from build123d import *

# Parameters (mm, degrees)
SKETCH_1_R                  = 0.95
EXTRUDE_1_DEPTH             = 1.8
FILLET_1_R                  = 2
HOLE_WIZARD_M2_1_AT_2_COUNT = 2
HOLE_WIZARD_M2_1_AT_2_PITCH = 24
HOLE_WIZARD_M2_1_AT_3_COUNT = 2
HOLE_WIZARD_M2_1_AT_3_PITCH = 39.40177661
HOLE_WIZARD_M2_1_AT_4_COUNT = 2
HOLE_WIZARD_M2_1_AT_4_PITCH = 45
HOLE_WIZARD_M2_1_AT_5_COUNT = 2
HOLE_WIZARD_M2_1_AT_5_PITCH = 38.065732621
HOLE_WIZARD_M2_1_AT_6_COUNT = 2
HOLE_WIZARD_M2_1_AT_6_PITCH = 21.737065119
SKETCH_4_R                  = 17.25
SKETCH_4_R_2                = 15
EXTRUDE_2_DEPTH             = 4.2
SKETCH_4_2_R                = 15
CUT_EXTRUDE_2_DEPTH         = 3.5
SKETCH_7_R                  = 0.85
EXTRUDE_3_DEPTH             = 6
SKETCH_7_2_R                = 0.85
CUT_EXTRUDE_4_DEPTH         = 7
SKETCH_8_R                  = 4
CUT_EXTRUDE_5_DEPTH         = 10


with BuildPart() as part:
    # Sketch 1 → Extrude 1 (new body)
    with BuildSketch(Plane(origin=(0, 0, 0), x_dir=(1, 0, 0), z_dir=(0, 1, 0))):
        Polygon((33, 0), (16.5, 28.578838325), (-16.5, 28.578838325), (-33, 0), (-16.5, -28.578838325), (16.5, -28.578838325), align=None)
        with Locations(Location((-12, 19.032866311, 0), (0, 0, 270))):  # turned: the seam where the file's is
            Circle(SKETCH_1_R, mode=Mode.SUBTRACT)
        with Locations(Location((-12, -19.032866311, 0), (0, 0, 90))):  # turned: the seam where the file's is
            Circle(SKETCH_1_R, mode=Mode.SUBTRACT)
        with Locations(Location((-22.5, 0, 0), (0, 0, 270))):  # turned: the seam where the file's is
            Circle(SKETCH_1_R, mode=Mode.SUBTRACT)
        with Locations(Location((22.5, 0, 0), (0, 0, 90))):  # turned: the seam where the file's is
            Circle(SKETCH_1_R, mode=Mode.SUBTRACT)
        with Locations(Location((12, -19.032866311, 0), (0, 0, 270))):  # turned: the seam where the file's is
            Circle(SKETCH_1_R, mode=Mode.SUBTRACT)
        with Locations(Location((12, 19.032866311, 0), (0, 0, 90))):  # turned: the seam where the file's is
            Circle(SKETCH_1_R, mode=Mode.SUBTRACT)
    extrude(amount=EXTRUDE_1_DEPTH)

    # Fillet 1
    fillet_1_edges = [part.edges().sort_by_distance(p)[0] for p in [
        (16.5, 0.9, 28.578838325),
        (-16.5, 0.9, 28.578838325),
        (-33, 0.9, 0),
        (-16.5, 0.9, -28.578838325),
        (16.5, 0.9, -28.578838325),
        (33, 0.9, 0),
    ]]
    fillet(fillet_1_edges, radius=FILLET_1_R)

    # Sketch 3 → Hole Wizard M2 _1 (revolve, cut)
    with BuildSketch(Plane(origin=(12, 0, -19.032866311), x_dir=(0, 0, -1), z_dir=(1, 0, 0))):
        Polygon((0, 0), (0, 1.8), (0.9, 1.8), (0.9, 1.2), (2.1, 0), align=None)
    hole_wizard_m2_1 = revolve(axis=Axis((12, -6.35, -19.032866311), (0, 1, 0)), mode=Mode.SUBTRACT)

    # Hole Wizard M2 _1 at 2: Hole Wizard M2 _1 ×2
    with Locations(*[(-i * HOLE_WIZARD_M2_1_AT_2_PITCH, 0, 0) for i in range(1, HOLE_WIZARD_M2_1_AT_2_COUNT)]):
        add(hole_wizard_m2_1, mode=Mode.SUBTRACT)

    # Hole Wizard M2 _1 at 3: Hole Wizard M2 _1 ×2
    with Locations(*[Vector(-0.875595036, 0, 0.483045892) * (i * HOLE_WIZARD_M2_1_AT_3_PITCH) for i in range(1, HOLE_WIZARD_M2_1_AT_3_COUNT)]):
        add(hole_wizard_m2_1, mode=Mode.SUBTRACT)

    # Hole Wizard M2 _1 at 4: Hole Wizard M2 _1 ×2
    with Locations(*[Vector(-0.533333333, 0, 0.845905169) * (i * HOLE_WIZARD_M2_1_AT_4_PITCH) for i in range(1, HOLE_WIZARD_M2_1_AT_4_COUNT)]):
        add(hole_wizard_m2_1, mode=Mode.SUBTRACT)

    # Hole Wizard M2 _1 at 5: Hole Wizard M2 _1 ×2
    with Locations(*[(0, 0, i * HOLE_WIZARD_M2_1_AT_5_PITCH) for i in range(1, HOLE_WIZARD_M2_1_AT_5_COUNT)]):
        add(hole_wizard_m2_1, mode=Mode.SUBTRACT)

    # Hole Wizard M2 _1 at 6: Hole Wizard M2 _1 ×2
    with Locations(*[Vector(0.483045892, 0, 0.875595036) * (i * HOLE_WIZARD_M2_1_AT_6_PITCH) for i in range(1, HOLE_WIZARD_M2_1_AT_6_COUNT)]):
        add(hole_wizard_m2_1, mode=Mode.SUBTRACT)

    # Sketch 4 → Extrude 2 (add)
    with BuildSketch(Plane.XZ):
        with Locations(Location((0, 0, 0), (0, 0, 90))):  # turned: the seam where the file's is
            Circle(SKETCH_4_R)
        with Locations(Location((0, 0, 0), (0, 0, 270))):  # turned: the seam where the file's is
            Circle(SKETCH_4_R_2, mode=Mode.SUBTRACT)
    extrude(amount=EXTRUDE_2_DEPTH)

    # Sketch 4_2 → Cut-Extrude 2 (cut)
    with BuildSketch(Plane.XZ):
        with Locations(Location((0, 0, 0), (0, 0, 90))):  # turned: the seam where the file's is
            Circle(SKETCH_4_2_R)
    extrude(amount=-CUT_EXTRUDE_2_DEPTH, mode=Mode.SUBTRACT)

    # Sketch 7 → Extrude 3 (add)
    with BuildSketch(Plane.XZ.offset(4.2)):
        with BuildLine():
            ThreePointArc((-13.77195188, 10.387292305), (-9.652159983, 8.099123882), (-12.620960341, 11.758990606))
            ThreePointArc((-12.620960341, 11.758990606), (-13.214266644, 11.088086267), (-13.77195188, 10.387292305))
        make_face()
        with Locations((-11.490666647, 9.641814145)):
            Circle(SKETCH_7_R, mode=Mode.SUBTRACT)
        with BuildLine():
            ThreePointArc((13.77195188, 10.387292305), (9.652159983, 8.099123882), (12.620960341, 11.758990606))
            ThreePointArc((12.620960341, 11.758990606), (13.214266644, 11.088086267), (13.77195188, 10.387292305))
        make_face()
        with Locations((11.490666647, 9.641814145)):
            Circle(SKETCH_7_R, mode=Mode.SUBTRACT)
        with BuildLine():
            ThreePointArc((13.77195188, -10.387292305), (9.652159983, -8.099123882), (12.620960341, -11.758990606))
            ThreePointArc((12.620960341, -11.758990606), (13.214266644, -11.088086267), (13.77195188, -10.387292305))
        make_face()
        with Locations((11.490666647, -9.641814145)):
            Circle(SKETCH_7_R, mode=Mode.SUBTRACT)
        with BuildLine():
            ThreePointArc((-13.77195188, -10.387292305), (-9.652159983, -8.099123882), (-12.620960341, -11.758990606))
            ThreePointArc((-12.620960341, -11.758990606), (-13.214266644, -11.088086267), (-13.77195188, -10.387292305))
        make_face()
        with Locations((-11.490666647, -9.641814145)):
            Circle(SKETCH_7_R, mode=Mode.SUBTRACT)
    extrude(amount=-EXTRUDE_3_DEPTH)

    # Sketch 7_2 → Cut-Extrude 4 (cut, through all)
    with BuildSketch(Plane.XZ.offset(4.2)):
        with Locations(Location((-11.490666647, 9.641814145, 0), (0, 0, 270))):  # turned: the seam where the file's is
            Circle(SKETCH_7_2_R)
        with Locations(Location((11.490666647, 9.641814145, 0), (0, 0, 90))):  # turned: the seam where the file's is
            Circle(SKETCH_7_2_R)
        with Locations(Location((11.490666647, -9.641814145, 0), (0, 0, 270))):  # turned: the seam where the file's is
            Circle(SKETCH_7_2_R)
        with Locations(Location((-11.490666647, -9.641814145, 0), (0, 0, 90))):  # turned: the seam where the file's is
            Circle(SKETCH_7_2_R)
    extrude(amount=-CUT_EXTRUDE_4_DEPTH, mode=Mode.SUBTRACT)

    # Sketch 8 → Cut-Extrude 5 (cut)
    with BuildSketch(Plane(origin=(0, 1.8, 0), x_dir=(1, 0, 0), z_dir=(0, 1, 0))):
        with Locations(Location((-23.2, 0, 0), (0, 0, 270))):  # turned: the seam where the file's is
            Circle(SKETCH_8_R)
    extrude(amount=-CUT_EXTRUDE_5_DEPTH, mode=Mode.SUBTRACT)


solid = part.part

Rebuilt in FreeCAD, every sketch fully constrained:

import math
import FreeCAD as App
import Part
import Sketcher

V = App.Vector
Q = App.Units.Quantity


def edges_at(feature, points):
    """Names of the edges that pass closest to the given points."""
    edges = feature.Shape.Edges
    near = lambda p: min(range(len(edges)), key=lambda i: edges[i].distToShape(Part.Vertex(*p))[0])
    return sorted({f"Edge{near(p) + 1}" for p in points})

doc = App.newDocument("Part")
body = doc.addObject("PartDesign::Body", "Body")

# Sketch on XZ plane
sketch1 = body.newObject("Sketcher::SketchObject", "Sketch")
sketch1.AttachmentSupport = (doc.getObject("XZ_Plane"), [""])
sketch1.MapMode = "FlatFace"
sketch1.addGeometry([
    Part.LineSegment(V(33, 0, 0), V(16.5, -28.6, 0)),  # 0
    Part.LineSegment(V(16.5, -28.6, 0), V(-16.5, -28.6, 0)),  # 1
    Part.LineSegment(V(-16.5, -28.6, 0), V(-33, 0, 0)),  # 2
    Part.LineSegment(V(-33, 0, 0), V(-16.5, 28.6, 0)),  # 3
    Part.LineSegment(V(-16.5, 28.6, 0), V(16.5, 28.6, 0)),  # 4
    Part.LineSegment(V(16.5, 28.6, 0), V(33, 0, 0)),  # 5
    Part.Circle(V(-12, 19, 0), V(0, 0, 1), 0.9),  # 6
    Part.Circle(V(12, 19, 0), V(0, 0, 1), 0.9),  # 7
    Part.Circle(V(-22.5, 0, 0), V(0, 0, 1), 0.9),  # 8
    Part.Circle(V(-12, -19, 0), V(0, 0, 1), 0.9),  # 9
    Part.Circle(V(22.5, 0, 0), V(0, 0, 1), 0.9),  # 10
    Part.Circle(V(12, -19, 0), V(0, 0, 1), 0.9),  # 11
], False)
sketch1.addConstraint([
    Sketcher.Constraint("Coincident", 0, 2, 1, 1),
    Sketcher.Constraint("Coincident", 1, 2, 2, 1),
    Sketcher.Constraint("Coincident", 2, 2, 3, 1),
    Sketcher.Constraint("Coincident", 3, 2, 4, 1),
    Sketcher.Constraint("Coincident", 4, 2, 5, 1),
    Sketcher.Constraint("Coincident", 5, 2, 0, 1),
    Sketcher.Constraint("Horizontal", 1),
    Sketcher.Constraint("Horizontal", 4),
    Sketcher.Constraint("Equal", 6, 7),
    Sketcher.Constraint("Equal", 7, 8),
    Sketcher.Constraint("Equal", 8, 9),
    Sketcher.Constraint("Equal", 9, 10),
    Sketcher.Constraint("Equal", 10, 11),
    Sketcher.Constraint("Symmetric", 7, 3, 9, 3, -1, 1),
    Sketcher.Constraint("Symmetric", 8, 3, 10, 3, -1, 1),
    Sketcher.Constraint("Symmetric", 6, 3, 11, 3, -1, 1),
    Sketcher.Constraint("Symmetric", 0, 2, 3, 2, -1, 1),
    Sketcher.Constraint("Symmetric", 2, 2, 5, 2, -1, 1),
    Sketcher.Constraint("Symmetric", 6, 3, 7, 3, -2),
    Sketcher.Constraint("PointOnObject", 8, 3, -1),
    Sketcher.Constraint("PointOnObject", 2, 2, -1),
    Sketcher.Constraint("Parallel", 2, 5),
    Sketcher.Constraint("Vertical", 1, 2, 3, 2),
    Sketcher.Constraint("Diameter", 6, Q("1.9 mm")),
    Sketcher.Constraint("DistanceX", 1, 2, 1, 1, Q("33 mm")),
    Sketcher.Constraint("Angle", 0, Q("-120 deg")),
    Sketcher.Constraint("Distance", 0, Q("33 mm")),
    Sketcher.Constraint("DistanceX", 6, 3, -1, 1, Q("12 mm")),
    Sketcher.Constraint("DistanceX", 8, 3, 10, 3, Q("45 mm")),
    Sketcher.Constraint("DistanceY", -1, 1, 6, 3, Q("19.032866 mm")),
])
pad1 = body.newObject("PartDesign::Pad", "Pad")
pad1.Profile = sketch1
pad1.Length = 1.8
pad1.Reversed = True
doc.recompute()

fillet = body.newObject("PartDesign::Fillet", "Fillet")
fillet.Base = (pad1, edges_at(pad1, [
    (16.5, 0.9, 28.579),
    (-16.5, 0.9, 28.579),
    (-33, 0.9, 0),
    (-16.5, 0.9, -28.579),
    (16.5, 0.9, -28.579),
    (33, 0.9, 0),
]))
fillet.Radius = 2

# Sketch on YZ plane
sketch2 = body.newObject("Sketcher::SketchObject", "Sketch001")
sketch2.AttachmentSupport = (doc.getObject("YZ_Plane"), [""])
sketch2.MapMode = "FlatFace"
sketch2.AttachmentOffset = App.Placement(V(0, 0, 12), App.Rotation())
sketch2.addGeometry([
    Part.LineSegment(V(1.8, -19, 0), V(0, -19, 0)),  # 0
    Part.LineSegment(V(0, -19, 0), V(0, -21.1, 0)),  # 1
    Part.LineSegment(V(0, -21.1, 0), V(1.2, -19.9, 0)),  # 2
    Part.LineSegment(V(1.2, -19.9, 0), V(1.8, -19.9, 0)),  # 3
    Part.LineSegment(V(1.8, -19.9, 0), V(1.8, -19, 0)),  # 4
], False)
sketch2.addGeometry(Part.LineSegment(V(0, -19, 0), V(1.8, -19, 0)), True)  # axis
sketch2.addConstraint([
    Sketcher.Constraint("Coincident", 0, 2, 1, 1),
    Sketcher.Constraint("Coincident", 1, 2, 2, 1),
    Sketcher.Constraint("Coincident", 2, 2, 3, 1),
    Sketcher.Constraint("Coincident", 3, 2, 4, 1),
    Sketcher.Constraint("Coincident", 4, 2, 0, 1),
    Sketcher.Constraint("Horizontal", 0),
    Sketcher.Constraint("Vertical", 1),
    Sketcher.Constraint("Horizontal", 3),
    Sketcher.Constraint("Vertical", 4),
    Sketcher.Constraint("Horizontal", 5),
    Sketcher.Constraint("Coincident", 5, 1, 0, 2),
    Sketcher.Constraint("PointOnObject", 0, 2, -2),
    Sketcher.Constraint("Vertical", 3, 2, 5, 2),
    Sketcher.Constraint("Angle", 2, Q("45 deg")),
    Sketcher.Constraint("DistanceX", 0, 2, 0, 1, Q("1.8 mm")),
    Sketcher.Constraint("DistanceX", 3, 1, 3, 2, Q("0.6 mm")),
    Sketcher.Constraint("DistanceY", 1, 2, 1, 1, Q("2.1 mm")),
    Sketcher.Constraint("DistanceY", 0, 2, -1, 1, Q("19.032866 mm")),
])
groove = body.newObject("PartDesign::Groove", "Groove")
groove.Profile = sketch2
groove.ReferenceAxis = (sketch2, ["Axis0"])
groove.Angle = 360
doc.recompute()

linearpattern = body.newObject("PartDesign::LinearPattern", "LinearPattern")
linearpattern.Originals = [groove]
linearpattern.Direction = (doc.getObject("X_Axis"), [""])
linearpattern.Mode = "offset"
linearpattern.Offset = 24
linearpattern.Occurrences = 2
linearpattern.Reversed = True
body.Tip = linearpattern
doc.recompute()

datumline = body.newObject("PartDesign::Line", "DatumLine")
datumline.Placement = App.Placement(V(0, 0, 0), App.Rotation(V(0, 0, 1), V(-0.875595036, 0, 0.483045892)))
linearpattern2 = body.newObject("PartDesign::LinearPattern", "LinearPattern001")
linearpattern2.Originals = [groove]
linearpattern2.Direction = (datumline, [""])
linearpattern2.Mode = "offset"
linearpattern2.Offset = 39.401777
linearpattern2.Occurrences = 2
body.Tip = linearpattern2
doc.recompute()

datumline2 = body.newObject("PartDesign::Line", "DatumLine001")
datumline2.Placement = App.Placement(V(0, 0, 0), App.Rotation(V(0, 0, 1), V(-0.533333333, 0, 0.845905169)))
linearpattern3 = body.newObject("PartDesign::LinearPattern", "LinearPattern002")
linearpattern3.Originals = [groove]
linearpattern3.Direction = (datumline2, [""])
linearpattern3.Mode = "offset"
linearpattern3.Offset = 45
linearpattern3.Occurrences = 2
body.Tip = linearpattern3
doc.recompute()

linearpattern4 = body.newObject("PartDesign::LinearPattern", "LinearPattern003")
linearpattern4.Originals = [groove]
linearpattern4.Direction = (doc.getObject("Z_Axis"), [""])
linearpattern4.Mode = "offset"
linearpattern4.Offset = 38.065733
linearpattern4.Occurrences = 2
body.Tip = linearpattern4
doc.recompute()

datumline3 = body.newObject("PartDesign::Line", "DatumLine002")
datumline3.Placement = App.Placement(V(0, 0, 0), App.Rotation(V(0, 0, 1), V(0.483045892, 0, 0.875595036)))
linearpattern5 = body.newObject("PartDesign::LinearPattern", "LinearPattern004")
linearpattern5.Originals = [groove]
linearpattern5.Direction = (datumline3, [""])
linearpattern5.Mode = "offset"
linearpattern5.Offset = 21.737065
linearpattern5.Occurrences = 2
body.Tip = linearpattern5

# Sketch on XZ plane
sketch3 = body.newObject("Sketcher::SketchObject", "Sketch002")
sketch3.AttachmentSupport = (doc.getObject("XZ_Plane"), [""])
sketch3.MapMode = "FlatFace"
sketch3.addGeometry([
    Part.Circle(V(0, 0, 0), V(0, 0, 1), 17),
    Part.Circle(V(0, 0, 0), V(0, 0, 1), 15),
], False)
sketch3.addConstraint([
    Sketcher.Constraint("Coincident", 0, 3, -1, 1),
    Sketcher.Constraint("Coincident", 1, 3, -1, 1),
    Sketcher.Constraint("Diameter", 1, Q("30 mm")),
    Sketcher.Constraint("Diameter", 0, Q("34.5 mm")),
])
pad2 = body.newObject("PartDesign::Pad", "Pad001")
pad2.Profile = sketch3
pad2.Length = 4.2

# Sketch on XZ plane
sketch4 = body.newObject("Sketcher::SketchObject", "Sketch003")
sketch4.AttachmentSupport = (doc.getObject("XZ_Plane"), [""])
sketch4.MapMode = "FlatFace"
sketch4.addGeometry(Part.Circle(V(0, 0, 0), V(0, 0, 1), 15), False)
sketch4.addConstraint([
    Sketcher.Constraint("Coincident", 0, 3, -1, 1),
    Sketcher.Constraint("Diameter", 0, Q("30 mm")),
])
pocket1 = body.newObject("PartDesign::Pocket", "Pocket")
pocket1.Profile = sketch4
pocket1.Length = 3.5

# Sketch on XZ plane
sketch5 = body.newObject("Sketcher::SketchObject", "Sketch004")
sketch5.AttachmentSupport = (doc.getObject("XZ_Plane"), [""])
sketch5.MapMode = "FlatFace"
sketch5.AttachmentOffset = App.Placement(V(0, 0, 4.2), App.Rotation())
sketch5.addGeometry([
    Part.ArcOfCircle(Part.Circle(V(-11.5, 9.6, 0), V(0, 0, 1), 2.4), math.radians(162), math.radians(478)),  # 0
    Part.ArcOfCircle(Part.Circle(V(0, 0, 0), V(0, 0, 1), 17.3), math.radians(137.02), math.radians(142.98)),  # 1
    Part.Circle(V(-11.5, 9.6, 0), V(0, 0, 1), 0.8),  # 2
    Part.ArcOfCircle(Part.Circle(V(11.5, 9.6, 0), V(0, 0, 1), 2.4), math.radians(62), math.radians(378)),  # 3
    Part.ArcOfCircle(Part.Circle(V(0, 0, 0), V(0, 0, 1), 17.3), math.radians(37.02), math.radians(42.98)),  # 4
    Part.Circle(V(11.5, 9.6, 0), V(0, 0, 1), 0.8),  # 5
    Part.ArcOfCircle(Part.Circle(V(11.5, -9.6, 0), V(0, 0, 1), 2.4), math.radians(-18), math.radians(298)),  # 6
    Part.ArcOfCircle(Part.Circle(V(0, 0, 0), V(0, 0, 1), 17.3), math.radians(-42.98), math.radians(-37.02)),  # 7
    Part.Circle(V(11.5, -9.6, 0), V(0, 0, 1), 0.8),  # 8
    Part.ArcOfCircle(Part.Circle(V(-11.5, -9.6, 0), V(0, 0, 1), 2.4), math.radians(-118), math.radians(198)),  # 9
    Part.ArcOfCircle(Part.Circle(V(0, 0, 0), V(0, 0, 1), 17.3), math.radians(-142.98), math.radians(-137.02)),  # 10
    Part.Circle(V(-11.5, -9.6, 0), V(0, 0, 1), 0.8),  # 11
], False)
sketch5.addConstraint([
    Sketcher.Constraint("Coincident", 0, 1, 1, 2),
    Sketcher.Constraint("Coincident", 1, 1, 0, 2),
    Sketcher.Constraint("Coincident", 3, 1, 4, 2),
    Sketcher.Constraint("Coincident", 4, 1, 3, 2),
    Sketcher.Constraint("Coincident", 6, 1, 7, 2),
    Sketcher.Constraint("Coincident", 7, 1, 6, 2),
    Sketcher.Constraint("Coincident", 9, 1, 10, 2),
    Sketcher.Constraint("Coincident", 10, 1, 9, 2),
    Sketcher.Constraint("Coincident", 1, 3, -1, 1),
    Sketcher.Constraint("Coincident", 4, 3, -1, 1),
    Sketcher.Constraint("Coincident", 7, 3, -1, 1),
    Sketcher.Constraint("Coincident", 10, 3, -1, 1),
    Sketcher.Constraint("Coincident", 2, 3, 0, 3),
    Sketcher.Constraint("Coincident", 5, 3, 3, 3),
    Sketcher.Constraint("Coincident", 8, 3, 6, 3),
    Sketcher.Constraint("Coincident", 11, 3, 9, 3),
    Sketcher.Constraint("Equal", 0, 3),
    Sketcher.Constraint("Equal", 1, 4),
    Sketcher.Constraint("Equal", 2, 5),
    Sketcher.Constraint("Equal", 3, 6),
    Sketcher.Constraint("Equal", 4, 7),
    Sketcher.Constraint("Equal", 5, 8),
    Sketcher.Constraint("Equal", 6, 9),
    Sketcher.Constraint("Equal", 7, 10),
    Sketcher.Constraint("Equal", 8, 11),
    Sketcher.Constraint("Symmetric", 0, 3, 6, 3, -1, 1),
    Sketcher.Constraint("Symmetric", 3, 3, 9, 3, -1, 1),
    Sketcher.Constraint("Symmetric", 0, 3, 3, 3, -2),
    Sketcher.Constraint("Diameter", 2, Q("1.7 mm")),
    Sketcher.Constraint("Radius", 0, Q("2.4 mm")),
    Sketcher.Constraint("Radius", 1, Q("17.25 mm")),
    Sketcher.Constraint("DistanceY", 0, 1, 1, 1, Q("1.371698 mm")),
    Sketcher.Constraint("DistanceX", 0, 1, -1, 1, Q("13.771952 mm")),
])
pad3 = body.newObject("PartDesign::Pad", "Pad002")
pad3.Profile = sketch5
pad3.Length = 6
pad3.Reversed = True

# Sketch on XZ plane
sketch6 = body.newObject("Sketcher::SketchObject", "Sketch005")
sketch6.AttachmentSupport = (doc.getObject("XZ_Plane"), [""])
sketch6.MapMode = "FlatFace"
sketch6.AttachmentOffset = App.Placement(V(0, 0, 4.2), App.Rotation())
sketch6.addGeometry([
    Part.Circle(V(-11.5, 9.6, 0), V(0, 0, 1), 0.8),
    Part.Circle(V(11.5, 9.6, 0), V(0, 0, 1), 0.8),
    Part.Circle(V(11.5, -9.6, 0), V(0, 0, 1), 0.8),
    Part.Circle(V(-11.5, -9.6, 0), V(0, 0, 1), 0.8),
], False)
sketch6.addConstraint([
    Sketcher.Constraint("Equal", 0, 1),
    Sketcher.Constraint("Equal", 1, 2),
    Sketcher.Constraint("Equal", 2, 3),
    Sketcher.Constraint("Symmetric", 0, 3, 2, 3, -1, 1),
    Sketcher.Constraint("Symmetric", 1, 3, 3, 3, -1, 1),
    Sketcher.Constraint("Symmetric", 0, 3, 1, 3, -2),
    Sketcher.Constraint("Diameter", 0, Q("1.7 mm")),
    Sketcher.Constraint("DistanceY", 2, 3, 1, 3, Q("19.283628 mm")),
    Sketcher.Constraint("DistanceX", 0, 3, -1, 1, Q("11.490667 mm")),
])
pocket2 = body.newObject("PartDesign::Pocket", "Pocket001")
pocket2.Profile = sketch6
pocket2.Type = "ThroughAll"

# Sketch on XZ plane
sketch7 = body.newObject("Sketcher::SketchObject", "Sketch006")
sketch7.AttachmentSupport = (doc.getObject("XZ_Plane"), [""])
sketch7.MapMode = "FlatFace"
sketch7.AttachmentOffset = App.Placement(V(0, 0, -1.8), App.Rotation())
sketch7.addGeometry(Part.Circle(V(-23.2, 0, 0), V(0, 0, 1), 4), False)
sketch7.addConstraint([
    Sketcher.Constraint("PointOnObject", 0, 3, -1),
    Sketcher.Constraint("Diameter", 0, Q("8 mm")),
    Sketcher.Constraint("DistanceX", 0, 3, -1, 1, Q("23.2 mm")),
])
pocket3 = body.newObject("PartDesign::Pocket", "Pocket002")
pocket3.Profile = sketch7
pocket3.Length = 10
pocket3.Reversed = True

doc.recompute()
